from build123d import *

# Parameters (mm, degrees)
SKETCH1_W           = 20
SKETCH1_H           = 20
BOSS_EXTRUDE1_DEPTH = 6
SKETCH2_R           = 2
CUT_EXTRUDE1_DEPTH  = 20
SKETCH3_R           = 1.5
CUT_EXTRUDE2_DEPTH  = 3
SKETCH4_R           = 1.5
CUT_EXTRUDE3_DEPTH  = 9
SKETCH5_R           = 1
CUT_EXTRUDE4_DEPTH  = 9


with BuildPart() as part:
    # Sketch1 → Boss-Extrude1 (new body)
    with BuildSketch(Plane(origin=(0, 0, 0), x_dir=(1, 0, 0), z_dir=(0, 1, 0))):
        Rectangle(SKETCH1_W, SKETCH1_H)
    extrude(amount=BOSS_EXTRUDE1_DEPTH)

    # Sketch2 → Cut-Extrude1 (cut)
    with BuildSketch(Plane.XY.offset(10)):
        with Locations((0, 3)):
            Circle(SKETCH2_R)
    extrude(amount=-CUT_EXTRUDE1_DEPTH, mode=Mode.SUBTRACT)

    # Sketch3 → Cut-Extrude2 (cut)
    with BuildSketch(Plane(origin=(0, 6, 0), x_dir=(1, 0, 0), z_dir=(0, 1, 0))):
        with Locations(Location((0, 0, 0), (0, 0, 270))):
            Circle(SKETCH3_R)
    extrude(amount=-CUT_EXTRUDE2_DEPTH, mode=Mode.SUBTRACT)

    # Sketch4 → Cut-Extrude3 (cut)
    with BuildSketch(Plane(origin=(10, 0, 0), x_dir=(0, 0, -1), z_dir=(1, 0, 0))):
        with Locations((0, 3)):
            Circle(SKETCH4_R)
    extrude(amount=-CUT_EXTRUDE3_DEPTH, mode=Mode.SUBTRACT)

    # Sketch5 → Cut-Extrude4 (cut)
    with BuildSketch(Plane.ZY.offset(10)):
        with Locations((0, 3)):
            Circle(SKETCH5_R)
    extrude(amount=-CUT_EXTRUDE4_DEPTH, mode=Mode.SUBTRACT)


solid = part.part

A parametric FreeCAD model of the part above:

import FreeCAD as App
import Part
import Sketcher
Q = App.Units.Quantity

doc = App.newDocument("Part")
body = doc.addObject("PartDesign::Body", "Body")

# Sketch on XZ plane
sketch1 = body.newObject("Sketcher::SketchObject", "Sketch")
sketch1.AttachmentSupport = (doc.getObject("XZ_Plane"), [""])
sketch1.MapMode = "FlatFace"
sketch1.addGeometry([
    Part.LineSegment(App.Vector(-10, -10, 0), App.Vector(-10, 10, 0)),
    Part.LineSegment(App.Vector(-10, 10, 0), App.Vector(10, 10, 0)),
    Part.LineSegment(App.Vector(10, 10, 0), App.Vector(10, -10, 0)),
    Part.LineSegment(App.Vector(10, -10, 0), App.Vector(-10, -10, 0)),
], False)
sketch1.addConstraint([
    Sketcher.Constraint("Coincident", 0, 2, 1, 1),
    Sketcher.Constraint("Coincident", 1, 2, 2, 1),
    Sketcher.Constraint("Coincident", 2, 2, 3, 1),
    Sketcher.Constraint("Coincident", 3, 2, 0, 1),
    Sketcher.Constraint("Vertical", 0),
    Sketcher.Constraint("Horizontal", 1),
    Sketcher.Constraint("Vertical", 2),
    Sketcher.Constraint("Horizontal", 3),
    Sketcher.Constraint("Symmetric", 0, 2, 2, 2, -1, 1),
    Sketcher.Constraint("Equal", 3, 0),
    Sketcher.Constraint("DistanceX", 1, 1, 1, 2, Q("20 mm")),
])
pad1 = body.newObject("PartDesign::Pad", "Pad")
pad1.Profile = sketch1
pad1.Length = 6
pad1.Reversed = True

# Sketch on XY plane
sketch2 = body.newObject("Sketcher::SketchObject", "Sketch001")
sketch2.AttachmentSupport = (doc.getObject("XY_Plane"), [""])
sketch2.MapMode = "FlatFace"
sketch2.AttachmentOffset = App.Placement(App.Vector(0, 0, 10), App.Rotation())
sketch2.addGeometry(Part.Circle(App.Vector(0, 3, 0), App.Vector(0, 0, 1), 2), False)
sketch2.addConstraint([
    Sketcher.Constraint("PointOnObject", 0, 3, -2),
    Sketcher.Constraint("Diameter", 0, Q("4 mm")),
    Sketcher.Constraint("DistanceY", -1, 1, 0, 3, Q("3 mm")),
])
pocket1 = body.newObject("PartDesign::Pocket", "Pocket")
pocket1.Profile = sketch2
pocket1.Length = 20

# Sketch on XZ plane
sketch3 = body.newObject("Sketcher::SketchObject", "Sketch002")
sketch3.AttachmentSupport = (doc.getObject("XZ_Plane"), [""])
sketch3.MapMode = "FlatFace"
sketch3.AttachmentOffset = App.Placement(App.Vector(0, 0, -6), App.Rotation())
sketch3.addGeometry(Part.Circle(App.Vector(0, 0, 0), App.Vector(0, 0, 1), 1.5), False)
sketch3.addConstraint([
    Sketcher.Constraint("Coincident", 0, 3, -1, 1),
    Sketcher.Constraint("Diameter", 0, Q("3 mm")),
])
pocket2 = body.newObject("PartDesign::Pocket", "Pocket001")
pocket2.Profile = sketch3
pocket2.Length = 3
pocket2.Reversed = True

# Sketch on YZ plane
sketch4 = body.newObject("Sketcher::SketchObject", "Sketch003")
sketch4.AttachmentSupport = (doc.getObject("YZ_Plane"), [""])
sketch4.MapMode = "FlatFace"
sketch4.AttachmentOffset = App.Placement(App.Vector(0, 0, 10), App.Rotation())
sketch4.addGeometry(Part.Circle(App.Vector(3, 0, 0), App.Vector(0, 0, 1), 1.5), False)
sketch4.addConstraint([
    Sketcher.Constraint("PointOnObject", 0, 3, -1),
    Sketcher.Constraint("Diameter", 0, Q("3 mm")),
    Sketcher.Constraint("DistanceX", -1, 1, 0, 3, Q("3 mm")),
])
pocket3 = body.newObject("PartDesign::Pocket", "Pocket002")
pocket3.Profile = sketch4
pocket3.Length = 9

# Sketch on YZ plane
sketch5 = body.newObject("Sketcher::SketchObject", "Sketch004")
sketch5.AttachmentSupport = (doc.getObject("YZ_Plane"), [""])
sketch5.MapMode = "FlatFace"
sketch5.AttachmentOffset = App.Placement(App.Vector(0, 0, -10), App.Rotation())
sketch5.addGeometry(Part.Circle(App.Vector(3, 0, 0), App.Vector(0, 0, 1), 1), False)
sketch5.addConstraint([
    Sketcher.Constraint("PointOnObject", 0, 3, -1),
    Sketcher.Constraint("Diameter", 0, Q("2 mm")),
    Sketcher.Constraint("DistanceX", -1, 1, 0, 3, Q("3 mm")),
])
pocket4 = body.newObject("PartDesign::Pocket", "Pocket003")
pocket4.Profile = sketch5
pocket4.Length = 9
pocket4.Reversed = True

doc.recompute()
